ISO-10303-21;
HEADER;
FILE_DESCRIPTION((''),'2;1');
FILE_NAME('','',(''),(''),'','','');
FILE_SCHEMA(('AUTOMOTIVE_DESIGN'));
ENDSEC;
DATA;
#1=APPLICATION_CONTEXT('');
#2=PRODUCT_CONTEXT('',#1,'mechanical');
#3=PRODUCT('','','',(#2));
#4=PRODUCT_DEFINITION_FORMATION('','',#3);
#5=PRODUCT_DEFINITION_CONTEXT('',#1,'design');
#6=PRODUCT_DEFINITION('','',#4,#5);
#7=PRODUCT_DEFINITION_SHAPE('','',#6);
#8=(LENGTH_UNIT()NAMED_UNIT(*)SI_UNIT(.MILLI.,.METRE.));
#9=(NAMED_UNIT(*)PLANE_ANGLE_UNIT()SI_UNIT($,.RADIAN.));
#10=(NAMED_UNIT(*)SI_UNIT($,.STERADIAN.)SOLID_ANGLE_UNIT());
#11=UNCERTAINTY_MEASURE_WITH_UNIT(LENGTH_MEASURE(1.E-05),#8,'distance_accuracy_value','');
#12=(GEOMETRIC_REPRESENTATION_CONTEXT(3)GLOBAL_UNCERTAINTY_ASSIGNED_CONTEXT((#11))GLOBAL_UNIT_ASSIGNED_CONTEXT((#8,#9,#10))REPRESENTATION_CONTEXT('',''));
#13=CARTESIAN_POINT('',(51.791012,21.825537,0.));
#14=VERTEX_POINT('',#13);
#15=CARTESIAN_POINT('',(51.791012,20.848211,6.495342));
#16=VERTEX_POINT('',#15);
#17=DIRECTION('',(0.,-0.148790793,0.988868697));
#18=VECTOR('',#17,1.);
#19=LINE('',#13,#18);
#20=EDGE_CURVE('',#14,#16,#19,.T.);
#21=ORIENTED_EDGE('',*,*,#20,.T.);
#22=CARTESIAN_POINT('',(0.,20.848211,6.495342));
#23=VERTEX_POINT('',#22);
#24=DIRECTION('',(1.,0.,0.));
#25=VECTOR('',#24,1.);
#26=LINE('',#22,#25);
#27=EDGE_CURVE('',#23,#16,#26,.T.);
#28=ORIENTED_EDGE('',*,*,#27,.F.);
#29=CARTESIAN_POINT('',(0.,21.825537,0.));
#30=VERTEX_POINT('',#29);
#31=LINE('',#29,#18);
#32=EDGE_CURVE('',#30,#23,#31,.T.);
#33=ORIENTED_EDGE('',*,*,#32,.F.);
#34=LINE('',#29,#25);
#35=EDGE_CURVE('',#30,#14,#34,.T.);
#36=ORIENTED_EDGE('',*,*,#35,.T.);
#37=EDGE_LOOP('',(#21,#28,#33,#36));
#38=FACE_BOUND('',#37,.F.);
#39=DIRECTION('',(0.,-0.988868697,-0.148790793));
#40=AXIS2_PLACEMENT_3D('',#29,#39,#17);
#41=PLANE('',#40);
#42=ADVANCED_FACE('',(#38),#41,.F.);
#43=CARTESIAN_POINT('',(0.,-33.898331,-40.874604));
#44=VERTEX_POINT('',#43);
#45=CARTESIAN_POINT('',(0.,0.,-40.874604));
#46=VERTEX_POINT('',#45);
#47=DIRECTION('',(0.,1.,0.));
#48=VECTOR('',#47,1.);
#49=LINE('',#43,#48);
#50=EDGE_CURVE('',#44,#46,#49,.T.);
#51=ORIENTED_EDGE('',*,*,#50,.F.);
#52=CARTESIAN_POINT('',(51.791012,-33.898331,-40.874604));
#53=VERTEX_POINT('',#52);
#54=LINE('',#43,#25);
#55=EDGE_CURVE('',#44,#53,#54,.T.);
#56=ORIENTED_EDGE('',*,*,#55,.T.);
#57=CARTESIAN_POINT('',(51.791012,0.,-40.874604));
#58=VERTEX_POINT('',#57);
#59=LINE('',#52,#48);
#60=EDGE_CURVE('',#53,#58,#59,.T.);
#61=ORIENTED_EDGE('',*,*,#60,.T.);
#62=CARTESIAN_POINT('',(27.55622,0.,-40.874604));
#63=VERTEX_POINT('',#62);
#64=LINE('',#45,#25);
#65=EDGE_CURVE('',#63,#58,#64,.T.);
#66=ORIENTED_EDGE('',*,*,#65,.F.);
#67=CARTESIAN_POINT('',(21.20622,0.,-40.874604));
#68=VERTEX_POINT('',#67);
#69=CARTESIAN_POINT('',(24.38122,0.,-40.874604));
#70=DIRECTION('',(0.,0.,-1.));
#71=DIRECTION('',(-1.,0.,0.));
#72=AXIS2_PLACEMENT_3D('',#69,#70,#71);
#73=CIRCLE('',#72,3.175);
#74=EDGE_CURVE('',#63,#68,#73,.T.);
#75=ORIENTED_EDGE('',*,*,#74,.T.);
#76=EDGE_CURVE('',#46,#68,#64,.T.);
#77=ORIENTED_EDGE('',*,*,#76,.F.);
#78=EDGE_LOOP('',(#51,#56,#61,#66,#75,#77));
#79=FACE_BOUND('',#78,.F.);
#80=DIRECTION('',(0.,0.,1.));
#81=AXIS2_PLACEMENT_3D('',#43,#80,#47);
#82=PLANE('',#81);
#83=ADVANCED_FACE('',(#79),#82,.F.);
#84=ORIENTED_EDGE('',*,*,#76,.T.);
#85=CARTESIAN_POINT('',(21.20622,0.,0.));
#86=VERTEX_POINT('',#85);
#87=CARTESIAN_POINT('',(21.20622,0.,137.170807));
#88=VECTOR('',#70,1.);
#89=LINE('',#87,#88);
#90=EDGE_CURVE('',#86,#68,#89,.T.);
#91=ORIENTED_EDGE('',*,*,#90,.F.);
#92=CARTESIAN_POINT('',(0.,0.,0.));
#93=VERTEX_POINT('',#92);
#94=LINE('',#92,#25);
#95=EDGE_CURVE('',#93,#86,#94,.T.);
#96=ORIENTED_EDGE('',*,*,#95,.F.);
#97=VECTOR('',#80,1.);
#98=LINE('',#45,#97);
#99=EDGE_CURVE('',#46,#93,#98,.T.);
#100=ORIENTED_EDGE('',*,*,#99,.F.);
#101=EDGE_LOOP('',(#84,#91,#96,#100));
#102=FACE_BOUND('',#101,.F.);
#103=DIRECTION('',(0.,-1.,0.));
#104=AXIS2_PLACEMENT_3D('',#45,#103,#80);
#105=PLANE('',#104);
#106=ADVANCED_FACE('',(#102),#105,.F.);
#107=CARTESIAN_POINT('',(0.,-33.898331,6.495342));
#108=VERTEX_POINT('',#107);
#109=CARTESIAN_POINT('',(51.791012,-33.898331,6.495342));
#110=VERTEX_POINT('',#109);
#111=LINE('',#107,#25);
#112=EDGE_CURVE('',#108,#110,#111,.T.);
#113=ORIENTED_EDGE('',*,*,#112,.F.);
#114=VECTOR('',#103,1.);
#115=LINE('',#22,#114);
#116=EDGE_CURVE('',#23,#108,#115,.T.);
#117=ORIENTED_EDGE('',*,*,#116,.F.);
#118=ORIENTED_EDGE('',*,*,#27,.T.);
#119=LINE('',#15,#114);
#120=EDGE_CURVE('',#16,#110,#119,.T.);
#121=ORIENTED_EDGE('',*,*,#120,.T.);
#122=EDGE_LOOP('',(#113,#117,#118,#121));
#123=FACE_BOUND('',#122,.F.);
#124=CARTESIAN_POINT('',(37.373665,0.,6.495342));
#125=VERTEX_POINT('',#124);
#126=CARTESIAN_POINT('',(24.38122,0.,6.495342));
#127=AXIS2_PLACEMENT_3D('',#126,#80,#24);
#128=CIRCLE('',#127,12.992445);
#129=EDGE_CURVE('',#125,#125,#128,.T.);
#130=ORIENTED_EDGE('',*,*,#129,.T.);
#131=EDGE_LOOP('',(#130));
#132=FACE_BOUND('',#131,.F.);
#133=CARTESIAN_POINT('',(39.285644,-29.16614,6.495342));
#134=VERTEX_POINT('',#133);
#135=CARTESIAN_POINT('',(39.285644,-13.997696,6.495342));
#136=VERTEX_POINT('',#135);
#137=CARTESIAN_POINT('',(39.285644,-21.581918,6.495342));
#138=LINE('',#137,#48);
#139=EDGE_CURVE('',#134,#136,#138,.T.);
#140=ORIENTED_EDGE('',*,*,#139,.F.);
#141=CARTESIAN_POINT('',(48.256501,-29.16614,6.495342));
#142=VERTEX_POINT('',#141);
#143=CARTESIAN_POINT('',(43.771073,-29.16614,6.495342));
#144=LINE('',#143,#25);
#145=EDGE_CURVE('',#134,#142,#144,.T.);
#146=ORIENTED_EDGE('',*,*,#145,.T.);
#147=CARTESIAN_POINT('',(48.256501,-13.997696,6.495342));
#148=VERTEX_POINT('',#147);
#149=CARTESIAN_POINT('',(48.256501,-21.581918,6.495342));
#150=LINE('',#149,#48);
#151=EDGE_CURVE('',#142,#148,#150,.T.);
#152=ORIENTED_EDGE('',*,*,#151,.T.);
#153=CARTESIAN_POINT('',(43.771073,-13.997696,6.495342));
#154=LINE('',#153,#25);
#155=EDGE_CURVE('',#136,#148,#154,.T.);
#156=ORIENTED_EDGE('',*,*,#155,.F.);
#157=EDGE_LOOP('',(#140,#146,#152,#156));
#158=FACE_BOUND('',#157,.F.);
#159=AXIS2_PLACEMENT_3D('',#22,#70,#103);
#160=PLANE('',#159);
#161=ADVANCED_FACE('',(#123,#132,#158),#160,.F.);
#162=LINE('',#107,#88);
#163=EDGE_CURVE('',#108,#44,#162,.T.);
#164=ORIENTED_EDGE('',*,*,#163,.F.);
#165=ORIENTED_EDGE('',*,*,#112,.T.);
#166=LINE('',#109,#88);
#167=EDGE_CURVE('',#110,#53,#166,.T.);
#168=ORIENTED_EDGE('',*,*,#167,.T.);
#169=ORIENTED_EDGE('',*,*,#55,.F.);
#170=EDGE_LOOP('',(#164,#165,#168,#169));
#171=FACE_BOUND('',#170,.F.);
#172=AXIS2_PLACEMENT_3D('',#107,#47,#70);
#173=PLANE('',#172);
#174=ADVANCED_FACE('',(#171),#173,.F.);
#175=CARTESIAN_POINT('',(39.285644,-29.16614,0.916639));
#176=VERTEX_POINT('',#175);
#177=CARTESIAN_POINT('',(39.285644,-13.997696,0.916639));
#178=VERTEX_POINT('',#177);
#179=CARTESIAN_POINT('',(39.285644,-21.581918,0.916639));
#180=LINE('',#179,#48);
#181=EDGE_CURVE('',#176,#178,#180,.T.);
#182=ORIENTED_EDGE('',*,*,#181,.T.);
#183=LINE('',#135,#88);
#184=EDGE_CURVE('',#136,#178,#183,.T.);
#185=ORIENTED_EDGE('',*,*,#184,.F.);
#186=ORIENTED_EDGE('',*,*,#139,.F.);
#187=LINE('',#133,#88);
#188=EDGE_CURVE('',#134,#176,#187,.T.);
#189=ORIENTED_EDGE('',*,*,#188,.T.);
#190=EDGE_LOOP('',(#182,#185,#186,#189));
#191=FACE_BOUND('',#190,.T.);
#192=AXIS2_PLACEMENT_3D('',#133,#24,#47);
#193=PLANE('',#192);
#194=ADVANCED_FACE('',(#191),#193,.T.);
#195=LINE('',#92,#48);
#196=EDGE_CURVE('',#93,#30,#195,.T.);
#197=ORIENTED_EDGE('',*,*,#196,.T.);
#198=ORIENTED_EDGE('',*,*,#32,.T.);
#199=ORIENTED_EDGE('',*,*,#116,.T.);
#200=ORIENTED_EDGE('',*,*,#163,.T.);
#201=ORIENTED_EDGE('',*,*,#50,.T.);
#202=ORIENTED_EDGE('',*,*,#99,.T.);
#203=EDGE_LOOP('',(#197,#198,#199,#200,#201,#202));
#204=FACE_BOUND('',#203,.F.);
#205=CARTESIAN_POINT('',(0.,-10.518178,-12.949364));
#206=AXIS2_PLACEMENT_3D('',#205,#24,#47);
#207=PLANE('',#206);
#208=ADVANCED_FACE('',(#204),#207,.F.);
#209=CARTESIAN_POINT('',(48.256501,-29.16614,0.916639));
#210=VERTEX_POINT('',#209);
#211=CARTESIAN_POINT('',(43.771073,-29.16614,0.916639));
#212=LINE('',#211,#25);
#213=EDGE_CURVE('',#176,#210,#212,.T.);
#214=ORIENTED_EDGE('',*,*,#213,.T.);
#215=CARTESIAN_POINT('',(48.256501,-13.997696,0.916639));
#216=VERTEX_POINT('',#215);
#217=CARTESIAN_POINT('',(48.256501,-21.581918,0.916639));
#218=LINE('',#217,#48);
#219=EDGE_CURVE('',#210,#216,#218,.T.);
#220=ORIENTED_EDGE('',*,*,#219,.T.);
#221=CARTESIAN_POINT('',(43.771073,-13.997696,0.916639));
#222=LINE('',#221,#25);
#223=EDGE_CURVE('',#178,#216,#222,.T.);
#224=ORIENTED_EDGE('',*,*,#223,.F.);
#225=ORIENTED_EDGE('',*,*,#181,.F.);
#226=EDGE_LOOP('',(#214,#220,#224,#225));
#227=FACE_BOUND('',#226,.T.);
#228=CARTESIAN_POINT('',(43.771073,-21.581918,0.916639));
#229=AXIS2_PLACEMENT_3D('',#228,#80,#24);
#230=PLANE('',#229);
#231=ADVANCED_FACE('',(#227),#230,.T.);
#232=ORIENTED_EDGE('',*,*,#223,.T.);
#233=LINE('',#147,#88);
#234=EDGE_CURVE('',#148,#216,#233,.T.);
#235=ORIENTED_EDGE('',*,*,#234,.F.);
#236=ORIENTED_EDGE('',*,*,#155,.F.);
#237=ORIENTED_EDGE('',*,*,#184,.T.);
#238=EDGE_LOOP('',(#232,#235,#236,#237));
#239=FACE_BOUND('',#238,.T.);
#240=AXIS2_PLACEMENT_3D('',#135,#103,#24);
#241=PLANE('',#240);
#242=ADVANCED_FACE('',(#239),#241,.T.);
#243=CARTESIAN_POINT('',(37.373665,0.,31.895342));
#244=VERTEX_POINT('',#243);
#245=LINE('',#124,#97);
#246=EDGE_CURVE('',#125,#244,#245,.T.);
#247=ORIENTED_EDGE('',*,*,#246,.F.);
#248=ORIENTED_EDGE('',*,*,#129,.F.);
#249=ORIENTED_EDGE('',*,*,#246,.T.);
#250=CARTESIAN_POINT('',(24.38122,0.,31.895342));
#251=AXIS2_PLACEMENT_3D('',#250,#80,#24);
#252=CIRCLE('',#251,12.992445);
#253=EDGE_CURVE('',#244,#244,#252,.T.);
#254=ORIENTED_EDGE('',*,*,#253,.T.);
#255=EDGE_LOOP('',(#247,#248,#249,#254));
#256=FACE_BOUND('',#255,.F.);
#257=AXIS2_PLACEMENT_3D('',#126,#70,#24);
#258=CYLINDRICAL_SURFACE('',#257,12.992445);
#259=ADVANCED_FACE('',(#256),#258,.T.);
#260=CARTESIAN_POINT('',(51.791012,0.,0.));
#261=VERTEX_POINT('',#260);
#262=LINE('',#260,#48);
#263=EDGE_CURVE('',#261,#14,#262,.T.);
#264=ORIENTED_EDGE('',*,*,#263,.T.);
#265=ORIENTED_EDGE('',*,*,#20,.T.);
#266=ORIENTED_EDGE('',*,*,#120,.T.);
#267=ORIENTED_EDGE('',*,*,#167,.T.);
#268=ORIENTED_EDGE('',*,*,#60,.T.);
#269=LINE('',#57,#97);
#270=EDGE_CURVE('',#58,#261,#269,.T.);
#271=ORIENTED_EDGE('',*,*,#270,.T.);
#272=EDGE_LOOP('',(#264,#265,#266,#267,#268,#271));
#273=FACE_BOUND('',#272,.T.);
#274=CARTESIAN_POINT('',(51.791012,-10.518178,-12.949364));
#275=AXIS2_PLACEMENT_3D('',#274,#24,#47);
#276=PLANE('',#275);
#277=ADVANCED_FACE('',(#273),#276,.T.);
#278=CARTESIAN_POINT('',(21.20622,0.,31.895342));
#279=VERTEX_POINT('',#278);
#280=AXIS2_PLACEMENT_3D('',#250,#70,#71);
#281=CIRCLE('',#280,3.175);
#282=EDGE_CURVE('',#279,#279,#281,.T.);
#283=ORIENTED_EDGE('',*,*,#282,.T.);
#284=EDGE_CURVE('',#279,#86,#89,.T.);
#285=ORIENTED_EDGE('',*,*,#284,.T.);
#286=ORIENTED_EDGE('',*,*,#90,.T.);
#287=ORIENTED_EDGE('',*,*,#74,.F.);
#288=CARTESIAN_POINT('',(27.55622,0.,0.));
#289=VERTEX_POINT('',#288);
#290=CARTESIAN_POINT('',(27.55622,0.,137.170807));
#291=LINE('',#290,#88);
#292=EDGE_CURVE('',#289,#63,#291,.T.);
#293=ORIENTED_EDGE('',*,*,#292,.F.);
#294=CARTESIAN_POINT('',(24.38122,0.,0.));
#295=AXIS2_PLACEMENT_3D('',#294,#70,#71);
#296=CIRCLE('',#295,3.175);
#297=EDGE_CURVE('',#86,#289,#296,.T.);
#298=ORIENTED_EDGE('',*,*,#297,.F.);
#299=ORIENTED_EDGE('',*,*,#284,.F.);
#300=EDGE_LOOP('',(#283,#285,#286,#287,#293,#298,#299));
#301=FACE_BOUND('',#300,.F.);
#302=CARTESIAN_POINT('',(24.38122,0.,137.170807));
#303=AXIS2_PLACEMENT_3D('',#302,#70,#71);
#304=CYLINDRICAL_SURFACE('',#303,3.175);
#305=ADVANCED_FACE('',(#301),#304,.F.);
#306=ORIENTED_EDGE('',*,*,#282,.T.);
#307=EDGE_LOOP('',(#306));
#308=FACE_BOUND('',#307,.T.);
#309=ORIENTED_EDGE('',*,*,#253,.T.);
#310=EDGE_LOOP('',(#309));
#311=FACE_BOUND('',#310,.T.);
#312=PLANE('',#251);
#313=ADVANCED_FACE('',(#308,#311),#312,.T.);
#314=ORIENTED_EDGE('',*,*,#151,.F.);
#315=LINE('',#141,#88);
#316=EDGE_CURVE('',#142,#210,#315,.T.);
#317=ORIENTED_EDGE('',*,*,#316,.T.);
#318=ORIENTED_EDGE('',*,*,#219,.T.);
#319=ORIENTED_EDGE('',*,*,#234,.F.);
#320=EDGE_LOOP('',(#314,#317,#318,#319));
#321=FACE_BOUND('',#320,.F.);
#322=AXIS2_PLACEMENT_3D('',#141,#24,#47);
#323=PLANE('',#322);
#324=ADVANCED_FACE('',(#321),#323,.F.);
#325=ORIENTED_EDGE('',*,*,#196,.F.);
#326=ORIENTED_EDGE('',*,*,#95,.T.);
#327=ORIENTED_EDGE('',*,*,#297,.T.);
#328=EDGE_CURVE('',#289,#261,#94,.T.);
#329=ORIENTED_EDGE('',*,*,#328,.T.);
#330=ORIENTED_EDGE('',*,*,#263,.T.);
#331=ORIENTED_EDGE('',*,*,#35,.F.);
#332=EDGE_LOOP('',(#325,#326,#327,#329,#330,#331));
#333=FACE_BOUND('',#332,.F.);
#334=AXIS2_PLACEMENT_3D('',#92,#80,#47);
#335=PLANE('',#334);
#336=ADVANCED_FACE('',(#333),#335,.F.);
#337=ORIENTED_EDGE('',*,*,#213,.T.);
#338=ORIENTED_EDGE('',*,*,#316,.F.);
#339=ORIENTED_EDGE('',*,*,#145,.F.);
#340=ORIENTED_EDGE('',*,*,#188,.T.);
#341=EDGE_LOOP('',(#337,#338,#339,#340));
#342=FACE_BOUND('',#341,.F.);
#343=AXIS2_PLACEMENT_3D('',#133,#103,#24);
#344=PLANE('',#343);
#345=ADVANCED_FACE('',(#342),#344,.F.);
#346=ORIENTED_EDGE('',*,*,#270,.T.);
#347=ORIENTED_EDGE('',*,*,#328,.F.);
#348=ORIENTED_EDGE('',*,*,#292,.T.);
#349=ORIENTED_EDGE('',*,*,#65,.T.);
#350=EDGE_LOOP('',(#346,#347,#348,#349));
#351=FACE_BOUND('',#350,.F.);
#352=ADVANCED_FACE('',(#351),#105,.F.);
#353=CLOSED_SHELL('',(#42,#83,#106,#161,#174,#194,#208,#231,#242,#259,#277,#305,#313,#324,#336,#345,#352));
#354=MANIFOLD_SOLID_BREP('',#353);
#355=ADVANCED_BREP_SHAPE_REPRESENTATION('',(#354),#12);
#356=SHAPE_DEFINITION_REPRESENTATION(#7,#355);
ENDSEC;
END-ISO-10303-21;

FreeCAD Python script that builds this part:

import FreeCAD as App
import Part
import Sketcher
Q = App.Units.Quantity

doc = App.newDocument("Part")
body = doc.addObject("PartDesign::Body", "Body")

# Sketch on YZ plane
sketch1 = doc.addObject("Sketcher::SketchObject", "Sketch")
body.addObject(sketch1)
sketch1.AttachmentSupport = (doc.YZ_Plane, [""])
sketch1.MapMode = "FlatFace"
sketch1.addGeometry([
    Part.LineSegment(App.Vector(21.825537, 0, 0), App.Vector(20.848211, 6.495342, 0)),  # 0
    Part.LineSegment(App.Vector(20.848211, 6.495342, 0), App.Vector(-33.898331, 6.495342, 0)),  # 1
    Part.LineSegment(App.Vector(-33.898331, 6.495342, 0), App.Vector(-33.898331, -40.874604, 0)),  # 2
    Part.LineSegment(App.Vector(-33.898331, -40.874604, 0), App.Vector(0, -40.874604, 0)),  # 3
    Part.LineSegment(App.Vector(0, -40.874604, 0), App.Vector(0, 0, 0)),  # 4
    Part.LineSegment(App.Vector(0, 0, 0), App.Vector(21.825537, 0, 0)),  # 5
], False)
sketch1.addConstraint([
    Sketcher.Constraint("Coincident", 0, 2, 1, 1),
    Sketcher.Constraint("Coincident", 1, 2, 2, 1),
    Sketcher.Constraint("Coincident", 2, 2, 3, 1),
    Sketcher.Constraint("Coincident", 3, 2, 4, 1),
    Sketcher.Constraint("Coincident", 4, 2, 5, 1),
    Sketcher.Constraint("Coincident", 5, 2, 0, 1),
    Sketcher.Constraint("Horizontal", 1),
    Sketcher.Constraint("Vertical", 2),
    Sketcher.Constraint("Horizontal", 3),
    Sketcher.Constraint("Vertical", 4),
    Sketcher.Constraint("Horizontal", 5),
    Sketcher.Constraint("Coincident", 4, 2, -1, 1),
    Sketcher.Constraint("DistanceX", 1, 2, 1, 1, Q("54.746542 mm")),
    Sketcher.Constraint("DistanceX", 3, 1, 3, 2, Q("33.898331 mm")),
    Sketcher.Constraint("DistanceX", 5, 1, 5, 2, Q("21.825537 mm")),
    Sketcher.Constraint("DistanceY", 2, 2, 2, 1, Q("47.369946 mm")),
    Sketcher.Constraint("DistanceY", 4, 1, 4, 2, Q("40.874604 mm")),
])
pad1 = doc.addObject("PartDesign::Pad", "Pad")
body.addObject(pad1)
pad1.Profile = sketch1
pad1.Length = 51.791012

# Sketch on XY plane
sketch2 = doc.addObject("Sketcher::SketchObject", "Sketch001")
body.addObject(sketch2)
sketch2.AttachmentSupport = (doc.XY_Plane, [""])
sketch2.MapMode = "FlatFace"
sketch2.AttachmentOffset = App.Placement(App.Vector(0, 0, 6.495342), App.Rotation())
sketch2.addGeometry(Part.Circle(App.Vector(24.38122, 0, 0), App.Vector(0, 0, 1), 12.992445), False)
sketch2.addConstraint([
    Sketcher.Constraint("PointOnObject", 0, 3, -1),
    Sketcher.Constraint("Diameter", 0, Q("25.98489 mm")),
    Sketcher.Constraint("DistanceX", -1, 1, 0, 3, Q("24.38122 mm")),
])
pad2 = doc.addObject("PartDesign::Pad", "Pad001")
body.addObject(pad2)
pad2.Profile = sketch2
pad2.Length = Q("1 in")

# Sketch on XY plane
sketch3 = doc.addObject("Sketcher::SketchObject", "Sketch002")
body.addObject(sketch3)
sketch3.AttachmentSupport = (doc.XY_Plane, [""])
sketch3.MapMode = "FlatFace"
sketch3.AttachmentOffset = App.Placement(App.Vector(0, 0, 31.895342), App.Rotation())
sketch3.addGeometry(Part.Circle(App.Vector(24.38122, 0, 0), App.Vector(0, 0, 1), 3.175), False)
sketch3.addConstraint([
    Sketcher.Constraint("PointOnObject", 0, 3, -1),
    Sketcher.Constraint("Diameter", 0, Q("0.25 in")),
    Sketcher.Constraint("DistanceX", -1, 1, 0, 3, Q("24.38122 mm")),
])
doc.recompute()
hole = doc.addObject("PartDesign::Hole", "Hole")
body.addObject(hole)
hole.Profile = sketch3
hole.ThreadType = "None"
hole.Diameter = Q("0.25 in")
hole.DepthType = "ThroughAll"

# Sketch on XY plane
sketch4 = doc.addObject("Sketcher::SketchObject", "Sketch003")
body.addObject(sketch4)
sketch4.AttachmentSupport = (doc.XY_Plane, [""])
sketch4.MapMode = "FlatFace"
sketch4.AttachmentOffset = App.Placement(App.Vector(0, 0, 6.495342), App.Rotation())
sketch4.addGeometry([
    Part.LineSegment(App.Vector(39.285644, -13.997696, 0), App.Vector(39.285644, -29.16614, 0)),
    Part.LineSegment(App.Vector(39.285644, -29.16614, 0), App.Vector(48.256501, -29.16614, 0)),
    Part.LineSegment(App.Vector(48.256501, -29.16614, 0), App.Vector(48.256501, -13.997696, 0)),
    Part.LineSegment(App.Vector(48.256501, -13.997696, 0), App.Vector(39.285644, -13.997696, 0)),
], False)
sketch4.addConstraint([
    Sketcher.Constraint("Coincident", 0, 2, 1, 1),
    Sketcher.Constraint("Coincident", 1, 2, 2, 1),
    Sketcher.Constraint("Coincident", 2, 2, 3, 1),
    Sketcher.Constraint("Coincident", 3, 2, 0, 1),
    Sketcher.Constraint("Vertical", 0),
    Sketcher.Constraint("Horizontal", 1),
    Sketcher.Constraint("Vertical", 2),
    Sketcher.Constraint("Horizontal", 3),
    Sketcher.Constraint("DistanceX", -1, 1, 1, 2, Q("48.256501 mm")),
    Sketcher.Constraint("DistanceX", 1, 1, 1, 2, Q("8.970857 mm")),
    Sketcher.Constraint("DistanceY", 0, 2, 0, 1, Q("15.168444 mm")),
    Sketcher.Constraint("DistanceY", 0, 2, -1, 1, Q("29.16614 mm")),
])
pocket1 = doc.addObject("PartDesign::Pocket", "Pocket")
body.addObject(pocket1)
pocket1.Profile = sketch4
pocket1.Length = 5.578703

doc.recompute()
